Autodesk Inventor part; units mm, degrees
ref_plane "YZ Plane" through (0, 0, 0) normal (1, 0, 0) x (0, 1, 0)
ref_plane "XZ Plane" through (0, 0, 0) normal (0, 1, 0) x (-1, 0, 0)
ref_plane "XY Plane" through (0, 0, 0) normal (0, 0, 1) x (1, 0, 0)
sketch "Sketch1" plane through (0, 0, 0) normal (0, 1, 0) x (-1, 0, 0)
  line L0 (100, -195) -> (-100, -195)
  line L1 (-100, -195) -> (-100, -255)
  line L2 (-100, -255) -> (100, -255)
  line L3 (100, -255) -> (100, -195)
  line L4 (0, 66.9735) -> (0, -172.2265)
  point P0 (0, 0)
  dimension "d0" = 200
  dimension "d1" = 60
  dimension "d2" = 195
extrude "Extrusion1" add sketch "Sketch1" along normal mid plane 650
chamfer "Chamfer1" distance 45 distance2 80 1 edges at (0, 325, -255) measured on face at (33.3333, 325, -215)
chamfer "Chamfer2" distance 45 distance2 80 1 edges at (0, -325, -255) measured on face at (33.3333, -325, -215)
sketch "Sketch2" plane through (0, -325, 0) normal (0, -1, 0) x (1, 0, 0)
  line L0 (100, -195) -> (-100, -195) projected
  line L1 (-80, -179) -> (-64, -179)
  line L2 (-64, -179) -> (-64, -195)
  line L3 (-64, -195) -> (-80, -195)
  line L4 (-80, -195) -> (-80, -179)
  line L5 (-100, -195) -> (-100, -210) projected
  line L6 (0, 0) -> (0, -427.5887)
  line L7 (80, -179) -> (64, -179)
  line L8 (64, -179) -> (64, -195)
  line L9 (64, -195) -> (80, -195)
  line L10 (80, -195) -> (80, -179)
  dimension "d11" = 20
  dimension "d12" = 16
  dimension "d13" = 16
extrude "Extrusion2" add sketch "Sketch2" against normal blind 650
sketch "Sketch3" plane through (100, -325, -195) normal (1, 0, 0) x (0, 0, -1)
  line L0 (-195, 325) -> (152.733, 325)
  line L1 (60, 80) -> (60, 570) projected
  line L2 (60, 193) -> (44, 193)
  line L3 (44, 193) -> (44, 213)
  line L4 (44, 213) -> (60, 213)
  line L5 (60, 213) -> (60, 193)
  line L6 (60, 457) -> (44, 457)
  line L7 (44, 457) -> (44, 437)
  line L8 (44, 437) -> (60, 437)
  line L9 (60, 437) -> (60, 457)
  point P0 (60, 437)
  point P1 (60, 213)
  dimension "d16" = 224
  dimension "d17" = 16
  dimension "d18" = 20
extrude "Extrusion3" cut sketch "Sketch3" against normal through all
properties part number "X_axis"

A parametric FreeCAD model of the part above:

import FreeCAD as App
import Part
import Sketcher


def edges_at(feature, points):
    """Names of the edges that pass closest to the given points."""
    edges = feature.Shape.Edges
    near = lambda p: min(range(len(edges)), key=lambda i: edges[i].distToShape(Part.Vertex(*p))[0])
    return sorted({f"Edge{near(p) + 1}" for p in points})


def add_polygon(sketch, points):
    """Adds a closed chain of lines whose ends are joined by coincident constraints."""
    first, n = sketch.GeometryCount, len(points)
    for a, b in zip(points, points[1:] + points[:1]):
        sketch.addGeometry(Part.LineSegment(App.Vector(*a, 0), App.Vector(*b, 0)), False)
    for i in range(n):
        sketch.addConstraint(Sketcher.Constraint("Coincident", first + i, 2, first + (i + 1) % n, 1))

doc = App.newDocument("Part")
params = doc.addObject("Spreadsheet::Sheet", "Params")
for row, (alias, value) in enumerate([
    ("sketch1_width", "200 mm"),
    ("sketch1_height", "60 mm"),
    ("pad1_length", "650 mm"),
    ("chamfer_size", "45 mm"),
    ("chamfer_size2", "80 mm"),
    ("chamfer2_size", "45 mm"),
    ("chamfer2_size2", "80 mm"),
    ("sketch2_width", "16 mm"),
    ("pad2_length", "650 mm"),
    ("sketch3_width", "20 mm"),
    ("sketch3_height", "16 mm"),
], start=1):
    params.set(f"A{row}", alias)
    params.set(f"B{row}", "=" + value)
    params.setAlias(f"B{row}", alias)

body = doc.addObject("PartDesign::Body", "Body")

# Sketch on XZ plane
sketch1 = doc.addObject("Sketcher::SketchObject", "Sketch")
body.addObject(sketch1)
sketch1.AttachmentSupport = (doc.XZ_Plane, [""])
sketch1.MapMode = "FlatFace"
add_polygon(sketch1, [(-100, -255), (-100, -195), (100, -195), (100, -255)])  # lines 0-3
sketch1.addConstraint(Sketcher.Constraint("Vertical", 0))
sketch1.addConstraint(Sketcher.Constraint("Horizontal", 1))
sketch1.addConstraint(Sketcher.Constraint("Vertical", 2))
sketch1.addConstraint(Sketcher.Constraint("Horizontal", 3))
sketch1.addConstraint(Sketcher.Constraint("DistanceX", 1, 1, 1, 2, 200.0))
sketch1.addConstraint(Sketcher.Constraint("DistanceY", 0, 1, 0, 2, 60.0))
sketch1.addConstraint(Sketcher.Constraint("DistanceY", 0, 2, -1, 1, 195.0))
sketch1.addConstraint(Sketcher.Constraint("DistanceX", 0, 2, -1, 1, 100.0))
sketch1.setExpression("Constraints[8]", "Params.sketch1_width")
sketch1.setExpression("Constraints[9]", "Params.sketch1_height")
pad1 = doc.addObject("PartDesign::Pad", "Pad")
body.addObject(pad1)
pad1.Profile = sketch1
pad1.setExpression("Length", "Params.pad1_length")
pad1.Midplane = True
doc.recompute()

chamfer = doc.addObject("PartDesign::Chamfer", "Chamfer")
body.addObject(chamfer)
chamfer.Base = (pad1, edges_at(pad1, [(0, 325, -255)]))
chamfer.ChamferType = "Two distances"
chamfer.setExpression("Size", "Params.chamfer_size")
chamfer.setExpression("Size2", "Params.chamfer_size2")
chamfer.FlipDirection = True
doc.recompute()

chamfer2 = doc.addObject("PartDesign::Chamfer", "Chamfer001")
body.addObject(chamfer2)
chamfer2.Base = (chamfer, edges_at(chamfer, [(0, -325, -255)]))
chamfer2.ChamferType = "Two distances"
chamfer2.setExpression("Size", "Params.chamfer2_size")
chamfer2.setExpression("Size2", "Params.chamfer2_size2")
chamfer2.FlipDirection = True

# Sketch on XZ plane
sketch2 = doc.addObject("Sketcher::SketchObject", "Sketch001")
body.addObject(sketch2)
sketch2.AttachmentSupport = (doc.XZ_Plane, [""])
sketch2.MapMode = "FlatFace"
sketch2.AttachmentOffset = App.Placement(App.Vector(0, 0, 325), App.Rotation())
add_polygon(sketch2, [(-80, -195), (-64, -195), (-64, -179), (-80, -179)])  # lines 0-3
add_polygon(sketch2, [(64, -195), (80, -195), (80, -179), (64, -179)])  # lines 4-7
sketch2.addConstraint(Sketcher.Constraint("Horizontal", 0))
sketch2.addConstraint(Sketcher.Constraint("Vertical", 1))
sketch2.addConstraint(Sketcher.Constraint("Horizontal", 2))
sketch2.addConstraint(Sketcher.Constraint("Vertical", 3))
sketch2.addConstraint(Sketcher.Constraint("Horizontal", 4))
sketch2.addConstraint(Sketcher.Constraint("Vertical", 5))
sketch2.addConstraint(Sketcher.Constraint("Horizontal", 6))
sketch2.addConstraint(Sketcher.Constraint("Vertical", 7))
sketch2.addConstraint(Sketcher.Constraint("Symmetric", 3, 2, 4, 2, -2))
sketch2.addConstraint(Sketcher.Constraint("Symmetric", 1, 2, 6, 2, -2))
sketch2.addConstraint(Sketcher.Constraint("Equal", 6, 1))
sketch2.addConstraint(Sketcher.Constraint("DistanceX", 0, 1, 0, 2, 16.0))
sketch2.addConstraint(Sketcher.Constraint("DistanceX", 0, 2, -1, 1, 64.0))
sketch2.addConstraint(Sketcher.Constraint("DistanceY", 0, 2, -1, 1, 195.0))
sketch2.setExpression("Constraints[19]", "Params.sketch2_width")
pad2 = doc.addObject("PartDesign::Pad", "Pad001")
body.addObject(pad2)
pad2.Profile = sketch2
pad2.setExpression("Length", "Params.pad2_length")
pad2.Reversed = True

# Sketch on YZ plane
sketch3 = doc.addObject("Sketcher::SketchObject", "Sketch002")
body.addObject(sketch3)
sketch3.AttachmentSupport = (doc.YZ_Plane, [""])
sketch3.MapMode = "FlatFace"
sketch3.AttachmentOffset = App.Placement(App.Vector(0, 0, 100), App.Rotation())
add_polygon(sketch3, [(-132, -239), (-132, -255), (-112, -255), (-112, -239)])  # lines 0-3
add_polygon(sketch3, [(112, -239), (112, -255), (132, -255), (132, -239)])  # lines 4-7
sketch3.addConstraint(Sketcher.Constraint("Vertical", 0))
sketch3.addConstraint(Sketcher.Constraint("Horizontal", 1))
sketch3.addConstraint(Sketcher.Constraint("Vertical", 2))
sketch3.addConstraint(Sketcher.Constraint("Horizontal", 3))
sketch3.addConstraint(Sketcher.Constraint("Vertical", 4))
sketch3.addConstraint(Sketcher.Constraint("Horizontal", 5))
sketch3.addConstraint(Sketcher.Constraint("Vertical", 6))
sketch3.addConstraint(Sketcher.Constraint("Horizontal", 7))
sketch3.addConstraint(Sketcher.Constraint("Symmetric", 1, 2, 4, 2, -2))
sketch3.addConstraint(Sketcher.Constraint("Symmetric", 3, 2, 6, 2, -2))
sketch3.addConstraint(Sketcher.Constraint("DistanceX", 1, 1, 1, 2, 20.0))
sketch3.addConstraint(Sketcher.Constraint("DistanceY", 0, 2, 0, 1, 16.0))
sketch3.addConstraint(Sketcher.Constraint("DistanceX", 1, 2, 4, 2, 224.0))
sketch3.addConstraint(Sketcher.Constraint("DistanceY", 0, 2, -1, 1, 255.0))
sketch3.setExpression("Constraints[18]", "Params.sketch3_width")
sketch3.setExpression("Constraints[19]", "Params.sketch3_height")
pocket1 = doc.addObject("PartDesign::Pocket", "Pocket")
body.addObject(pocket1)
pocket1.Profile = sketch3
pocket1.Type = "ThroughAll"

doc.recompute()
